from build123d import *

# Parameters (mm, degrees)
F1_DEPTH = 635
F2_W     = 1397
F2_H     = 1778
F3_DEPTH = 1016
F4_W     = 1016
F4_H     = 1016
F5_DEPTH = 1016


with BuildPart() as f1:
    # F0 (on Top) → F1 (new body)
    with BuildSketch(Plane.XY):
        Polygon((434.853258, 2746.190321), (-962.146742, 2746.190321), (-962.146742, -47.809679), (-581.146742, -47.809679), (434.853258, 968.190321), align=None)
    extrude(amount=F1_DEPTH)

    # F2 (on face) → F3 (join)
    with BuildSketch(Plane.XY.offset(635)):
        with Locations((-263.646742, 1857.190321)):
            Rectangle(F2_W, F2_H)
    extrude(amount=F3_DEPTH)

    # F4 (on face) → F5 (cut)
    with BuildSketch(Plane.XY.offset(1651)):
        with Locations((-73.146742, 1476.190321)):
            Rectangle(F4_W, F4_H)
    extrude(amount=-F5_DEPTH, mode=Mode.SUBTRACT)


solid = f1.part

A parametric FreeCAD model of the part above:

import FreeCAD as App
import Part
import Sketcher

V = App.Vector
Q = App.Units.Quantity

doc = App.newDocument("Part")
body = doc.addObject("PartDesign::Body", "Body")

# Sketch on XY plane
sketch1 = doc.addObject("Sketcher::SketchObject", "Sketch")
body.addObject(sketch1)
sketch1.AttachmentSupport = (doc.XY_Plane, [""])
sketch1.MapMode = "FlatFace"
sketch1.addGeometry(Part.LineSegment(V(435, 2746, 0), V(-962, 2746, 0)), False)
sketch1.addGeometry(Part.LineSegment(V(-962, 2746, 0), V(-962, -48, 0)), False)
sketch1.addGeometry(Part.LineSegment(V(-962, -48, 0), V(-581, -48, 0)), False)
sketch1.addGeometry(Part.LineSegment(V(-581, -48, 0), V(435, 968, 0)), False)
sketch1.addGeometry(Part.LineSegment(V(435, 968, 0), V(435, 2746, 0)), False)
sketch1.addConstraint(Sketcher.Constraint("Coincident", 0, 2, 1, 1))
sketch1.addConstraint(Sketcher.Constraint("Coincident", 1, 2, 2, 1))
sketch1.addConstraint(Sketcher.Constraint("Coincident", 2, 2, 3, 1))
sketch1.addConstraint(Sketcher.Constraint("Coincident", 3, 2, 4, 1))
sketch1.addConstraint(Sketcher.Constraint("Coincident", 4, 2, 0, 1))
sketch1.addConstraint(Sketcher.Constraint("Horizontal", 0))
sketch1.addConstraint(Sketcher.Constraint("Vertical", 1))
sketch1.addConstraint(Sketcher.Constraint("Horizontal", 2))
sketch1.addConstraint(Sketcher.Constraint("Vertical", 4))
sketch1.addConstraint(Sketcher.Constraint("DistanceX", 0, 2, 0, 1, Q("55 in")))
sketch1.addConstraint(Sketcher.Constraint("DistanceX", 2, 1, 2, 2, Q("15 in")))
sketch1.addConstraint(Sketcher.Constraint("DistanceY", 1, 2, 1, 1, Q("110 in")))
sketch1.addConstraint(Sketcher.Constraint("DistanceY", 4, 1, 4, 2, Q("70 in")))
sketch1.addConstraint(Sketcher.Constraint("DistanceX", 0, 2, -1, 1, 962.146742))
sketch1.addConstraint(Sketcher.Constraint("DistanceY", -1, 1, 0, 2, 2746.190321))
pad1 = doc.addObject("PartDesign::Pad", "Pad")
body.addObject(pad1)
pad1.Profile = sketch1
pad1.Length = Q("25 in")

# Sketch on XY plane
sketch2 = doc.addObject("Sketcher::SketchObject", "Sketch001")
body.addObject(sketch2)
sketch2.AttachmentSupport = (doc.XY_Plane, [""])
sketch2.MapMode = "FlatFace"
sketch2.AttachmentOffset = App.Placement(V(0, 0, 25 * 25.4), App.Rotation())
sketch2.addGeometry(Part.LineSegment(V(-962, 2746, 0), V(-962, 968, 0)), False)
sketch2.addGeometry(Part.LineSegment(V(-962, 968, 0), V(435, 968, 0)), False)
sketch2.addGeometry(Part.LineSegment(V(435, 968, 0), V(435, 2746, 0)), False)
sketch2.addGeometry(Part.LineSegment(V(435, 2746, 0), V(-962, 2746, 0)), False)
sketch2.addConstraint(Sketcher.Constraint("Coincident", 0, 2, 1, 1))
sketch2.addConstraint(Sketcher.Constraint("Coincident", 1, 2, 2, 1))
sketch2.addConstraint(Sketcher.Constraint("Coincident", 2, 2, 3, 1))
sketch2.addConstraint(Sketcher.Constraint("Coincident", 3, 2, 0, 1))
sketch2.addConstraint(Sketcher.Constraint("Vertical", 0))
sketch2.addConstraint(Sketcher.Constraint("Horizontal", 1))
sketch2.addConstraint(Sketcher.Constraint("Vertical", 2))
sketch2.addConstraint(Sketcher.Constraint("Horizontal", 3))
sketch2.addConstraint(Sketcher.Constraint("DistanceX", 1, 1, 1, 2, Q("55 in")))
sketch2.addConstraint(Sketcher.Constraint("DistanceY", 0, 2, 0, 1, Q("70 in")))
sketch2.addConstraint(Sketcher.Constraint("DistanceX", 0, 2, -1, 1, 962.146742))
sketch2.addConstraint(Sketcher.Constraint("DistanceY", -1, 1, 0, 2, 968.190321))
pad2 = doc.addObject("PartDesign::Pad", "Pad001")
body.addObject(pad2)
pad2.Profile = sketch2
pad2.Length = Q("40 in")

# Sketch on XY plane
sketch3 = doc.addObject("Sketcher::SketchObject", "Sketch002")
body.addObject(sketch3)
sketch3.AttachmentSupport = (doc.XY_Plane, [""])
sketch3.MapMode = "FlatFace"
sketch3.AttachmentOffset = App.Placement(V(0, 0, 65 * 25.4), App.Rotation())
sketch3.addGeometry(Part.LineSegment(V(-581, 1984, 0), V(-581, 968, 0)), False)
sketch3.addGeometry(Part.LineSegment(V(-581, 968, 0), V(435, 968, 0)), False)
sketch3.addGeometry(Part.LineSegment(V(435, 968, 0), V(435, 1984, 0)), False)
sketch3.addGeometry(Part.LineSegment(V(435, 1984, 0), V(-581, 1984, 0)), False)
sketch3.addConstraint(Sketcher.Constraint("Coincident", 0, 2, 1, 1))
sketch3.addConstraint(Sketcher.Constraint("Coincident", 1, 2, 2, 1))
sketch3.addConstraint(Sketcher.Constraint("Coincident", 2, 2, 3, 1))
sketch3.addConstraint(Sketcher.Constraint("Coincident", 3, 2, 0, 1))
sketch3.addConstraint(Sketcher.Constraint("Vertical", 0))
sketch3.addConstraint(Sketcher.Constraint("Horizontal", 1))
sketch3.addConstraint(Sketcher.Constraint("Vertical", 2))
sketch3.addConstraint(Sketcher.Constraint("Horizontal", 3))
sketch3.addConstraint(Sketcher.Constraint("Equal", 3, 0))
sketch3.addConstraint(Sketcher.Constraint("DistanceX", 1, 1, 1, 2, Q("40 in")))
sketch3.addConstraint(Sketcher.Constraint("DistanceX", 0, 2, -1, 1, 581.146742))
sketch3.addConstraint(Sketcher.Constraint("DistanceY", -1, 1, 0, 2, 968.190321))
pocket1 = doc.addObject("PartDesign::Pocket", "Pocket")
body.addObject(pocket1)
pocket1.Profile = sketch3
pocket1.Length = Q("40 in")

doc.recompute()
